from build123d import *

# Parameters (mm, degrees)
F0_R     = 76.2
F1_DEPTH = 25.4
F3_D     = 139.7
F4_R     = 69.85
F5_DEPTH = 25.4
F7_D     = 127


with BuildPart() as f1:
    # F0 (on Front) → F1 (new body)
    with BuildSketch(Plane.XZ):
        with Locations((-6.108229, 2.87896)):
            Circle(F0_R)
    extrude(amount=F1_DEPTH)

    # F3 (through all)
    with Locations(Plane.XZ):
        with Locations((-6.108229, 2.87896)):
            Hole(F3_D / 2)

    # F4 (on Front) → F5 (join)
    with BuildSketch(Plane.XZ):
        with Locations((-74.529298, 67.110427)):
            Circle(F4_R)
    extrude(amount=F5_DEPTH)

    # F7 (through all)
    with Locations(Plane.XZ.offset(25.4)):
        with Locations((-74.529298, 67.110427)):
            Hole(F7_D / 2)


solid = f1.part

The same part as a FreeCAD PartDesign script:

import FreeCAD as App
import Part
import Sketcher
from FreeCAD import Vector
Q = App.Units.Quantity

doc = App.newDocument("Part")
params = doc.addObject("Spreadsheet::Sheet", "Params")
for row, (alias, value) in enumerate([
    ("sketch1_diameter", "6 in"),
    ("pad1_length", "1 in"),
    ("sketch2_diameter", "5.5 in"),
    ("hole_diameter", "5.5 in"),
    ("sketch3_diameter", "5.5 in"),
    ("pad2_length", "1 in"),
    ("sketch4_diameter", "5 in"),
    ("hole2_diameter", "5 in"),
], start=1):
    params.set(f"A{row}", alias)
    params.set(f"B{row}", "=" + value)
    params.setAlias(f"B{row}", alias)

body = doc.addObject("PartDesign::Body", "Body")

sketch1 = doc.addObject("Sketcher::SketchObject", "Sketch")
body.addObject(sketch1)
sketch1.AttachmentSupport = (doc.XZ_Plane, [""])
sketch1.MapMode = "FlatFace"
sketch1.addGeometry(Part.Circle(Vector(-6, 3, 0), Vector(0, 0, 1), 76), False)
sketch1.addConstraint(Sketcher.Constraint("Diameter", 0, Q("6 in")))
sketch1.addConstraint(Sketcher.Constraint("DistanceX", 0, 3, -1, 1, 6.108229))
sketch1.addConstraint(Sketcher.Constraint("DistanceY", -1, 1, 0, 3, 2.87896))
sketch1.setExpression("Constraints[0]", "Params.sketch1_diameter")
pad1 = doc.addObject("PartDesign::Pad", "Pad")
body.addObject(pad1)
pad1.Profile = sketch1
pad1.setExpression("Length", "Params.pad1_length")

sketch2 = doc.addObject("Sketcher::SketchObject", "Sketch001")
body.addObject(sketch2)
sketch2.AttachmentSupport = (doc.XZ_Plane, [""])
sketch2.MapMode = "FlatFace"
sketch2.addGeometry(Part.Circle(Vector(-6, 3, 0), Vector(0, 0, 1), 70), False)
sketch2.addConstraint(Sketcher.Constraint("Diameter", 0, Q("5.5 in")))
sketch2.addConstraint(Sketcher.Constraint("DistanceX", 0, 3, -1, 1, 6.108229))
sketch2.addConstraint(Sketcher.Constraint("DistanceY", -1, 1, 0, 3, 2.87896))
sketch2.setExpression("Constraints[0]", "Params.sketch2_diameter")
doc.recompute()
hole = doc.addObject("PartDesign::Hole", "Hole")
body.addObject(hole)
hole.Profile = sketch2
hole.ThreadType = "None"
hole.setExpression("Diameter", "Params.hole_diameter")
hole.DepthType = "ThroughAll"
hole.Reversed = True

sketch3 = doc.addObject("Sketcher::SketchObject", "Sketch002")
body.addObject(sketch3)
sketch3.AttachmentSupport = (doc.XZ_Plane, [""])
sketch3.MapMode = "FlatFace"
sketch3.addGeometry(Part.Circle(Vector(-75, 67, 0), Vector(0, 0, 1), 70), False)
sketch3.addConstraint(Sketcher.Constraint("Diameter", 0, Q("5.5 in")))
sketch3.addConstraint(Sketcher.Constraint("DistanceX", 0, 3, -1, 1, 74.529298))
sketch3.addConstraint(Sketcher.Constraint("DistanceY", -1, 1, 0, 3, 67.110427))
sketch3.setExpression("Constraints[0]", "Params.sketch3_diameter")
pad2 = doc.addObject("PartDesign::Pad", "Pad001")
body.addObject(pad2)
pad2.Profile = sketch3
pad2.setExpression("Length", "Params.pad2_length")

sketch4 = doc.addObject("Sketcher::SketchObject", "Sketch003")
body.addObject(sketch4)
sketch4.AttachmentSupport = (doc.XZ_Plane, [""])
sketch4.MapMode = "FlatFace"
sketch4.AttachmentOffset = App.Placement(Vector(0, 0, 1 * 25.4), App.Rotation())
sketch4.addGeometry(Part.Circle(Vector(-75, 67, 0), Vector(0, 0, 1), 64), False)
sketch4.addConstraint(Sketcher.Constraint("Diameter", 0, Q("5 in")))
sketch4.addConstraint(Sketcher.Constraint("DistanceX", 0, 3, -1, 1, 74.529298))
sketch4.addConstraint(Sketcher.Constraint("DistanceY", -1, 1, 0, 3, 67.110427))
sketch4.setExpression("Constraints[0]", "Params.sketch4_diameter")
doc.recompute()
hole2 = doc.addObject("PartDesign::Hole", "Hole001")
body.addObject(hole2)
hole2.Profile = sketch4
hole2.ThreadType = "None"
hole2.setExpression("Diameter", "Params.hole2_diameter")
hole2.DepthType = "ThroughAll"

doc.recompute()
